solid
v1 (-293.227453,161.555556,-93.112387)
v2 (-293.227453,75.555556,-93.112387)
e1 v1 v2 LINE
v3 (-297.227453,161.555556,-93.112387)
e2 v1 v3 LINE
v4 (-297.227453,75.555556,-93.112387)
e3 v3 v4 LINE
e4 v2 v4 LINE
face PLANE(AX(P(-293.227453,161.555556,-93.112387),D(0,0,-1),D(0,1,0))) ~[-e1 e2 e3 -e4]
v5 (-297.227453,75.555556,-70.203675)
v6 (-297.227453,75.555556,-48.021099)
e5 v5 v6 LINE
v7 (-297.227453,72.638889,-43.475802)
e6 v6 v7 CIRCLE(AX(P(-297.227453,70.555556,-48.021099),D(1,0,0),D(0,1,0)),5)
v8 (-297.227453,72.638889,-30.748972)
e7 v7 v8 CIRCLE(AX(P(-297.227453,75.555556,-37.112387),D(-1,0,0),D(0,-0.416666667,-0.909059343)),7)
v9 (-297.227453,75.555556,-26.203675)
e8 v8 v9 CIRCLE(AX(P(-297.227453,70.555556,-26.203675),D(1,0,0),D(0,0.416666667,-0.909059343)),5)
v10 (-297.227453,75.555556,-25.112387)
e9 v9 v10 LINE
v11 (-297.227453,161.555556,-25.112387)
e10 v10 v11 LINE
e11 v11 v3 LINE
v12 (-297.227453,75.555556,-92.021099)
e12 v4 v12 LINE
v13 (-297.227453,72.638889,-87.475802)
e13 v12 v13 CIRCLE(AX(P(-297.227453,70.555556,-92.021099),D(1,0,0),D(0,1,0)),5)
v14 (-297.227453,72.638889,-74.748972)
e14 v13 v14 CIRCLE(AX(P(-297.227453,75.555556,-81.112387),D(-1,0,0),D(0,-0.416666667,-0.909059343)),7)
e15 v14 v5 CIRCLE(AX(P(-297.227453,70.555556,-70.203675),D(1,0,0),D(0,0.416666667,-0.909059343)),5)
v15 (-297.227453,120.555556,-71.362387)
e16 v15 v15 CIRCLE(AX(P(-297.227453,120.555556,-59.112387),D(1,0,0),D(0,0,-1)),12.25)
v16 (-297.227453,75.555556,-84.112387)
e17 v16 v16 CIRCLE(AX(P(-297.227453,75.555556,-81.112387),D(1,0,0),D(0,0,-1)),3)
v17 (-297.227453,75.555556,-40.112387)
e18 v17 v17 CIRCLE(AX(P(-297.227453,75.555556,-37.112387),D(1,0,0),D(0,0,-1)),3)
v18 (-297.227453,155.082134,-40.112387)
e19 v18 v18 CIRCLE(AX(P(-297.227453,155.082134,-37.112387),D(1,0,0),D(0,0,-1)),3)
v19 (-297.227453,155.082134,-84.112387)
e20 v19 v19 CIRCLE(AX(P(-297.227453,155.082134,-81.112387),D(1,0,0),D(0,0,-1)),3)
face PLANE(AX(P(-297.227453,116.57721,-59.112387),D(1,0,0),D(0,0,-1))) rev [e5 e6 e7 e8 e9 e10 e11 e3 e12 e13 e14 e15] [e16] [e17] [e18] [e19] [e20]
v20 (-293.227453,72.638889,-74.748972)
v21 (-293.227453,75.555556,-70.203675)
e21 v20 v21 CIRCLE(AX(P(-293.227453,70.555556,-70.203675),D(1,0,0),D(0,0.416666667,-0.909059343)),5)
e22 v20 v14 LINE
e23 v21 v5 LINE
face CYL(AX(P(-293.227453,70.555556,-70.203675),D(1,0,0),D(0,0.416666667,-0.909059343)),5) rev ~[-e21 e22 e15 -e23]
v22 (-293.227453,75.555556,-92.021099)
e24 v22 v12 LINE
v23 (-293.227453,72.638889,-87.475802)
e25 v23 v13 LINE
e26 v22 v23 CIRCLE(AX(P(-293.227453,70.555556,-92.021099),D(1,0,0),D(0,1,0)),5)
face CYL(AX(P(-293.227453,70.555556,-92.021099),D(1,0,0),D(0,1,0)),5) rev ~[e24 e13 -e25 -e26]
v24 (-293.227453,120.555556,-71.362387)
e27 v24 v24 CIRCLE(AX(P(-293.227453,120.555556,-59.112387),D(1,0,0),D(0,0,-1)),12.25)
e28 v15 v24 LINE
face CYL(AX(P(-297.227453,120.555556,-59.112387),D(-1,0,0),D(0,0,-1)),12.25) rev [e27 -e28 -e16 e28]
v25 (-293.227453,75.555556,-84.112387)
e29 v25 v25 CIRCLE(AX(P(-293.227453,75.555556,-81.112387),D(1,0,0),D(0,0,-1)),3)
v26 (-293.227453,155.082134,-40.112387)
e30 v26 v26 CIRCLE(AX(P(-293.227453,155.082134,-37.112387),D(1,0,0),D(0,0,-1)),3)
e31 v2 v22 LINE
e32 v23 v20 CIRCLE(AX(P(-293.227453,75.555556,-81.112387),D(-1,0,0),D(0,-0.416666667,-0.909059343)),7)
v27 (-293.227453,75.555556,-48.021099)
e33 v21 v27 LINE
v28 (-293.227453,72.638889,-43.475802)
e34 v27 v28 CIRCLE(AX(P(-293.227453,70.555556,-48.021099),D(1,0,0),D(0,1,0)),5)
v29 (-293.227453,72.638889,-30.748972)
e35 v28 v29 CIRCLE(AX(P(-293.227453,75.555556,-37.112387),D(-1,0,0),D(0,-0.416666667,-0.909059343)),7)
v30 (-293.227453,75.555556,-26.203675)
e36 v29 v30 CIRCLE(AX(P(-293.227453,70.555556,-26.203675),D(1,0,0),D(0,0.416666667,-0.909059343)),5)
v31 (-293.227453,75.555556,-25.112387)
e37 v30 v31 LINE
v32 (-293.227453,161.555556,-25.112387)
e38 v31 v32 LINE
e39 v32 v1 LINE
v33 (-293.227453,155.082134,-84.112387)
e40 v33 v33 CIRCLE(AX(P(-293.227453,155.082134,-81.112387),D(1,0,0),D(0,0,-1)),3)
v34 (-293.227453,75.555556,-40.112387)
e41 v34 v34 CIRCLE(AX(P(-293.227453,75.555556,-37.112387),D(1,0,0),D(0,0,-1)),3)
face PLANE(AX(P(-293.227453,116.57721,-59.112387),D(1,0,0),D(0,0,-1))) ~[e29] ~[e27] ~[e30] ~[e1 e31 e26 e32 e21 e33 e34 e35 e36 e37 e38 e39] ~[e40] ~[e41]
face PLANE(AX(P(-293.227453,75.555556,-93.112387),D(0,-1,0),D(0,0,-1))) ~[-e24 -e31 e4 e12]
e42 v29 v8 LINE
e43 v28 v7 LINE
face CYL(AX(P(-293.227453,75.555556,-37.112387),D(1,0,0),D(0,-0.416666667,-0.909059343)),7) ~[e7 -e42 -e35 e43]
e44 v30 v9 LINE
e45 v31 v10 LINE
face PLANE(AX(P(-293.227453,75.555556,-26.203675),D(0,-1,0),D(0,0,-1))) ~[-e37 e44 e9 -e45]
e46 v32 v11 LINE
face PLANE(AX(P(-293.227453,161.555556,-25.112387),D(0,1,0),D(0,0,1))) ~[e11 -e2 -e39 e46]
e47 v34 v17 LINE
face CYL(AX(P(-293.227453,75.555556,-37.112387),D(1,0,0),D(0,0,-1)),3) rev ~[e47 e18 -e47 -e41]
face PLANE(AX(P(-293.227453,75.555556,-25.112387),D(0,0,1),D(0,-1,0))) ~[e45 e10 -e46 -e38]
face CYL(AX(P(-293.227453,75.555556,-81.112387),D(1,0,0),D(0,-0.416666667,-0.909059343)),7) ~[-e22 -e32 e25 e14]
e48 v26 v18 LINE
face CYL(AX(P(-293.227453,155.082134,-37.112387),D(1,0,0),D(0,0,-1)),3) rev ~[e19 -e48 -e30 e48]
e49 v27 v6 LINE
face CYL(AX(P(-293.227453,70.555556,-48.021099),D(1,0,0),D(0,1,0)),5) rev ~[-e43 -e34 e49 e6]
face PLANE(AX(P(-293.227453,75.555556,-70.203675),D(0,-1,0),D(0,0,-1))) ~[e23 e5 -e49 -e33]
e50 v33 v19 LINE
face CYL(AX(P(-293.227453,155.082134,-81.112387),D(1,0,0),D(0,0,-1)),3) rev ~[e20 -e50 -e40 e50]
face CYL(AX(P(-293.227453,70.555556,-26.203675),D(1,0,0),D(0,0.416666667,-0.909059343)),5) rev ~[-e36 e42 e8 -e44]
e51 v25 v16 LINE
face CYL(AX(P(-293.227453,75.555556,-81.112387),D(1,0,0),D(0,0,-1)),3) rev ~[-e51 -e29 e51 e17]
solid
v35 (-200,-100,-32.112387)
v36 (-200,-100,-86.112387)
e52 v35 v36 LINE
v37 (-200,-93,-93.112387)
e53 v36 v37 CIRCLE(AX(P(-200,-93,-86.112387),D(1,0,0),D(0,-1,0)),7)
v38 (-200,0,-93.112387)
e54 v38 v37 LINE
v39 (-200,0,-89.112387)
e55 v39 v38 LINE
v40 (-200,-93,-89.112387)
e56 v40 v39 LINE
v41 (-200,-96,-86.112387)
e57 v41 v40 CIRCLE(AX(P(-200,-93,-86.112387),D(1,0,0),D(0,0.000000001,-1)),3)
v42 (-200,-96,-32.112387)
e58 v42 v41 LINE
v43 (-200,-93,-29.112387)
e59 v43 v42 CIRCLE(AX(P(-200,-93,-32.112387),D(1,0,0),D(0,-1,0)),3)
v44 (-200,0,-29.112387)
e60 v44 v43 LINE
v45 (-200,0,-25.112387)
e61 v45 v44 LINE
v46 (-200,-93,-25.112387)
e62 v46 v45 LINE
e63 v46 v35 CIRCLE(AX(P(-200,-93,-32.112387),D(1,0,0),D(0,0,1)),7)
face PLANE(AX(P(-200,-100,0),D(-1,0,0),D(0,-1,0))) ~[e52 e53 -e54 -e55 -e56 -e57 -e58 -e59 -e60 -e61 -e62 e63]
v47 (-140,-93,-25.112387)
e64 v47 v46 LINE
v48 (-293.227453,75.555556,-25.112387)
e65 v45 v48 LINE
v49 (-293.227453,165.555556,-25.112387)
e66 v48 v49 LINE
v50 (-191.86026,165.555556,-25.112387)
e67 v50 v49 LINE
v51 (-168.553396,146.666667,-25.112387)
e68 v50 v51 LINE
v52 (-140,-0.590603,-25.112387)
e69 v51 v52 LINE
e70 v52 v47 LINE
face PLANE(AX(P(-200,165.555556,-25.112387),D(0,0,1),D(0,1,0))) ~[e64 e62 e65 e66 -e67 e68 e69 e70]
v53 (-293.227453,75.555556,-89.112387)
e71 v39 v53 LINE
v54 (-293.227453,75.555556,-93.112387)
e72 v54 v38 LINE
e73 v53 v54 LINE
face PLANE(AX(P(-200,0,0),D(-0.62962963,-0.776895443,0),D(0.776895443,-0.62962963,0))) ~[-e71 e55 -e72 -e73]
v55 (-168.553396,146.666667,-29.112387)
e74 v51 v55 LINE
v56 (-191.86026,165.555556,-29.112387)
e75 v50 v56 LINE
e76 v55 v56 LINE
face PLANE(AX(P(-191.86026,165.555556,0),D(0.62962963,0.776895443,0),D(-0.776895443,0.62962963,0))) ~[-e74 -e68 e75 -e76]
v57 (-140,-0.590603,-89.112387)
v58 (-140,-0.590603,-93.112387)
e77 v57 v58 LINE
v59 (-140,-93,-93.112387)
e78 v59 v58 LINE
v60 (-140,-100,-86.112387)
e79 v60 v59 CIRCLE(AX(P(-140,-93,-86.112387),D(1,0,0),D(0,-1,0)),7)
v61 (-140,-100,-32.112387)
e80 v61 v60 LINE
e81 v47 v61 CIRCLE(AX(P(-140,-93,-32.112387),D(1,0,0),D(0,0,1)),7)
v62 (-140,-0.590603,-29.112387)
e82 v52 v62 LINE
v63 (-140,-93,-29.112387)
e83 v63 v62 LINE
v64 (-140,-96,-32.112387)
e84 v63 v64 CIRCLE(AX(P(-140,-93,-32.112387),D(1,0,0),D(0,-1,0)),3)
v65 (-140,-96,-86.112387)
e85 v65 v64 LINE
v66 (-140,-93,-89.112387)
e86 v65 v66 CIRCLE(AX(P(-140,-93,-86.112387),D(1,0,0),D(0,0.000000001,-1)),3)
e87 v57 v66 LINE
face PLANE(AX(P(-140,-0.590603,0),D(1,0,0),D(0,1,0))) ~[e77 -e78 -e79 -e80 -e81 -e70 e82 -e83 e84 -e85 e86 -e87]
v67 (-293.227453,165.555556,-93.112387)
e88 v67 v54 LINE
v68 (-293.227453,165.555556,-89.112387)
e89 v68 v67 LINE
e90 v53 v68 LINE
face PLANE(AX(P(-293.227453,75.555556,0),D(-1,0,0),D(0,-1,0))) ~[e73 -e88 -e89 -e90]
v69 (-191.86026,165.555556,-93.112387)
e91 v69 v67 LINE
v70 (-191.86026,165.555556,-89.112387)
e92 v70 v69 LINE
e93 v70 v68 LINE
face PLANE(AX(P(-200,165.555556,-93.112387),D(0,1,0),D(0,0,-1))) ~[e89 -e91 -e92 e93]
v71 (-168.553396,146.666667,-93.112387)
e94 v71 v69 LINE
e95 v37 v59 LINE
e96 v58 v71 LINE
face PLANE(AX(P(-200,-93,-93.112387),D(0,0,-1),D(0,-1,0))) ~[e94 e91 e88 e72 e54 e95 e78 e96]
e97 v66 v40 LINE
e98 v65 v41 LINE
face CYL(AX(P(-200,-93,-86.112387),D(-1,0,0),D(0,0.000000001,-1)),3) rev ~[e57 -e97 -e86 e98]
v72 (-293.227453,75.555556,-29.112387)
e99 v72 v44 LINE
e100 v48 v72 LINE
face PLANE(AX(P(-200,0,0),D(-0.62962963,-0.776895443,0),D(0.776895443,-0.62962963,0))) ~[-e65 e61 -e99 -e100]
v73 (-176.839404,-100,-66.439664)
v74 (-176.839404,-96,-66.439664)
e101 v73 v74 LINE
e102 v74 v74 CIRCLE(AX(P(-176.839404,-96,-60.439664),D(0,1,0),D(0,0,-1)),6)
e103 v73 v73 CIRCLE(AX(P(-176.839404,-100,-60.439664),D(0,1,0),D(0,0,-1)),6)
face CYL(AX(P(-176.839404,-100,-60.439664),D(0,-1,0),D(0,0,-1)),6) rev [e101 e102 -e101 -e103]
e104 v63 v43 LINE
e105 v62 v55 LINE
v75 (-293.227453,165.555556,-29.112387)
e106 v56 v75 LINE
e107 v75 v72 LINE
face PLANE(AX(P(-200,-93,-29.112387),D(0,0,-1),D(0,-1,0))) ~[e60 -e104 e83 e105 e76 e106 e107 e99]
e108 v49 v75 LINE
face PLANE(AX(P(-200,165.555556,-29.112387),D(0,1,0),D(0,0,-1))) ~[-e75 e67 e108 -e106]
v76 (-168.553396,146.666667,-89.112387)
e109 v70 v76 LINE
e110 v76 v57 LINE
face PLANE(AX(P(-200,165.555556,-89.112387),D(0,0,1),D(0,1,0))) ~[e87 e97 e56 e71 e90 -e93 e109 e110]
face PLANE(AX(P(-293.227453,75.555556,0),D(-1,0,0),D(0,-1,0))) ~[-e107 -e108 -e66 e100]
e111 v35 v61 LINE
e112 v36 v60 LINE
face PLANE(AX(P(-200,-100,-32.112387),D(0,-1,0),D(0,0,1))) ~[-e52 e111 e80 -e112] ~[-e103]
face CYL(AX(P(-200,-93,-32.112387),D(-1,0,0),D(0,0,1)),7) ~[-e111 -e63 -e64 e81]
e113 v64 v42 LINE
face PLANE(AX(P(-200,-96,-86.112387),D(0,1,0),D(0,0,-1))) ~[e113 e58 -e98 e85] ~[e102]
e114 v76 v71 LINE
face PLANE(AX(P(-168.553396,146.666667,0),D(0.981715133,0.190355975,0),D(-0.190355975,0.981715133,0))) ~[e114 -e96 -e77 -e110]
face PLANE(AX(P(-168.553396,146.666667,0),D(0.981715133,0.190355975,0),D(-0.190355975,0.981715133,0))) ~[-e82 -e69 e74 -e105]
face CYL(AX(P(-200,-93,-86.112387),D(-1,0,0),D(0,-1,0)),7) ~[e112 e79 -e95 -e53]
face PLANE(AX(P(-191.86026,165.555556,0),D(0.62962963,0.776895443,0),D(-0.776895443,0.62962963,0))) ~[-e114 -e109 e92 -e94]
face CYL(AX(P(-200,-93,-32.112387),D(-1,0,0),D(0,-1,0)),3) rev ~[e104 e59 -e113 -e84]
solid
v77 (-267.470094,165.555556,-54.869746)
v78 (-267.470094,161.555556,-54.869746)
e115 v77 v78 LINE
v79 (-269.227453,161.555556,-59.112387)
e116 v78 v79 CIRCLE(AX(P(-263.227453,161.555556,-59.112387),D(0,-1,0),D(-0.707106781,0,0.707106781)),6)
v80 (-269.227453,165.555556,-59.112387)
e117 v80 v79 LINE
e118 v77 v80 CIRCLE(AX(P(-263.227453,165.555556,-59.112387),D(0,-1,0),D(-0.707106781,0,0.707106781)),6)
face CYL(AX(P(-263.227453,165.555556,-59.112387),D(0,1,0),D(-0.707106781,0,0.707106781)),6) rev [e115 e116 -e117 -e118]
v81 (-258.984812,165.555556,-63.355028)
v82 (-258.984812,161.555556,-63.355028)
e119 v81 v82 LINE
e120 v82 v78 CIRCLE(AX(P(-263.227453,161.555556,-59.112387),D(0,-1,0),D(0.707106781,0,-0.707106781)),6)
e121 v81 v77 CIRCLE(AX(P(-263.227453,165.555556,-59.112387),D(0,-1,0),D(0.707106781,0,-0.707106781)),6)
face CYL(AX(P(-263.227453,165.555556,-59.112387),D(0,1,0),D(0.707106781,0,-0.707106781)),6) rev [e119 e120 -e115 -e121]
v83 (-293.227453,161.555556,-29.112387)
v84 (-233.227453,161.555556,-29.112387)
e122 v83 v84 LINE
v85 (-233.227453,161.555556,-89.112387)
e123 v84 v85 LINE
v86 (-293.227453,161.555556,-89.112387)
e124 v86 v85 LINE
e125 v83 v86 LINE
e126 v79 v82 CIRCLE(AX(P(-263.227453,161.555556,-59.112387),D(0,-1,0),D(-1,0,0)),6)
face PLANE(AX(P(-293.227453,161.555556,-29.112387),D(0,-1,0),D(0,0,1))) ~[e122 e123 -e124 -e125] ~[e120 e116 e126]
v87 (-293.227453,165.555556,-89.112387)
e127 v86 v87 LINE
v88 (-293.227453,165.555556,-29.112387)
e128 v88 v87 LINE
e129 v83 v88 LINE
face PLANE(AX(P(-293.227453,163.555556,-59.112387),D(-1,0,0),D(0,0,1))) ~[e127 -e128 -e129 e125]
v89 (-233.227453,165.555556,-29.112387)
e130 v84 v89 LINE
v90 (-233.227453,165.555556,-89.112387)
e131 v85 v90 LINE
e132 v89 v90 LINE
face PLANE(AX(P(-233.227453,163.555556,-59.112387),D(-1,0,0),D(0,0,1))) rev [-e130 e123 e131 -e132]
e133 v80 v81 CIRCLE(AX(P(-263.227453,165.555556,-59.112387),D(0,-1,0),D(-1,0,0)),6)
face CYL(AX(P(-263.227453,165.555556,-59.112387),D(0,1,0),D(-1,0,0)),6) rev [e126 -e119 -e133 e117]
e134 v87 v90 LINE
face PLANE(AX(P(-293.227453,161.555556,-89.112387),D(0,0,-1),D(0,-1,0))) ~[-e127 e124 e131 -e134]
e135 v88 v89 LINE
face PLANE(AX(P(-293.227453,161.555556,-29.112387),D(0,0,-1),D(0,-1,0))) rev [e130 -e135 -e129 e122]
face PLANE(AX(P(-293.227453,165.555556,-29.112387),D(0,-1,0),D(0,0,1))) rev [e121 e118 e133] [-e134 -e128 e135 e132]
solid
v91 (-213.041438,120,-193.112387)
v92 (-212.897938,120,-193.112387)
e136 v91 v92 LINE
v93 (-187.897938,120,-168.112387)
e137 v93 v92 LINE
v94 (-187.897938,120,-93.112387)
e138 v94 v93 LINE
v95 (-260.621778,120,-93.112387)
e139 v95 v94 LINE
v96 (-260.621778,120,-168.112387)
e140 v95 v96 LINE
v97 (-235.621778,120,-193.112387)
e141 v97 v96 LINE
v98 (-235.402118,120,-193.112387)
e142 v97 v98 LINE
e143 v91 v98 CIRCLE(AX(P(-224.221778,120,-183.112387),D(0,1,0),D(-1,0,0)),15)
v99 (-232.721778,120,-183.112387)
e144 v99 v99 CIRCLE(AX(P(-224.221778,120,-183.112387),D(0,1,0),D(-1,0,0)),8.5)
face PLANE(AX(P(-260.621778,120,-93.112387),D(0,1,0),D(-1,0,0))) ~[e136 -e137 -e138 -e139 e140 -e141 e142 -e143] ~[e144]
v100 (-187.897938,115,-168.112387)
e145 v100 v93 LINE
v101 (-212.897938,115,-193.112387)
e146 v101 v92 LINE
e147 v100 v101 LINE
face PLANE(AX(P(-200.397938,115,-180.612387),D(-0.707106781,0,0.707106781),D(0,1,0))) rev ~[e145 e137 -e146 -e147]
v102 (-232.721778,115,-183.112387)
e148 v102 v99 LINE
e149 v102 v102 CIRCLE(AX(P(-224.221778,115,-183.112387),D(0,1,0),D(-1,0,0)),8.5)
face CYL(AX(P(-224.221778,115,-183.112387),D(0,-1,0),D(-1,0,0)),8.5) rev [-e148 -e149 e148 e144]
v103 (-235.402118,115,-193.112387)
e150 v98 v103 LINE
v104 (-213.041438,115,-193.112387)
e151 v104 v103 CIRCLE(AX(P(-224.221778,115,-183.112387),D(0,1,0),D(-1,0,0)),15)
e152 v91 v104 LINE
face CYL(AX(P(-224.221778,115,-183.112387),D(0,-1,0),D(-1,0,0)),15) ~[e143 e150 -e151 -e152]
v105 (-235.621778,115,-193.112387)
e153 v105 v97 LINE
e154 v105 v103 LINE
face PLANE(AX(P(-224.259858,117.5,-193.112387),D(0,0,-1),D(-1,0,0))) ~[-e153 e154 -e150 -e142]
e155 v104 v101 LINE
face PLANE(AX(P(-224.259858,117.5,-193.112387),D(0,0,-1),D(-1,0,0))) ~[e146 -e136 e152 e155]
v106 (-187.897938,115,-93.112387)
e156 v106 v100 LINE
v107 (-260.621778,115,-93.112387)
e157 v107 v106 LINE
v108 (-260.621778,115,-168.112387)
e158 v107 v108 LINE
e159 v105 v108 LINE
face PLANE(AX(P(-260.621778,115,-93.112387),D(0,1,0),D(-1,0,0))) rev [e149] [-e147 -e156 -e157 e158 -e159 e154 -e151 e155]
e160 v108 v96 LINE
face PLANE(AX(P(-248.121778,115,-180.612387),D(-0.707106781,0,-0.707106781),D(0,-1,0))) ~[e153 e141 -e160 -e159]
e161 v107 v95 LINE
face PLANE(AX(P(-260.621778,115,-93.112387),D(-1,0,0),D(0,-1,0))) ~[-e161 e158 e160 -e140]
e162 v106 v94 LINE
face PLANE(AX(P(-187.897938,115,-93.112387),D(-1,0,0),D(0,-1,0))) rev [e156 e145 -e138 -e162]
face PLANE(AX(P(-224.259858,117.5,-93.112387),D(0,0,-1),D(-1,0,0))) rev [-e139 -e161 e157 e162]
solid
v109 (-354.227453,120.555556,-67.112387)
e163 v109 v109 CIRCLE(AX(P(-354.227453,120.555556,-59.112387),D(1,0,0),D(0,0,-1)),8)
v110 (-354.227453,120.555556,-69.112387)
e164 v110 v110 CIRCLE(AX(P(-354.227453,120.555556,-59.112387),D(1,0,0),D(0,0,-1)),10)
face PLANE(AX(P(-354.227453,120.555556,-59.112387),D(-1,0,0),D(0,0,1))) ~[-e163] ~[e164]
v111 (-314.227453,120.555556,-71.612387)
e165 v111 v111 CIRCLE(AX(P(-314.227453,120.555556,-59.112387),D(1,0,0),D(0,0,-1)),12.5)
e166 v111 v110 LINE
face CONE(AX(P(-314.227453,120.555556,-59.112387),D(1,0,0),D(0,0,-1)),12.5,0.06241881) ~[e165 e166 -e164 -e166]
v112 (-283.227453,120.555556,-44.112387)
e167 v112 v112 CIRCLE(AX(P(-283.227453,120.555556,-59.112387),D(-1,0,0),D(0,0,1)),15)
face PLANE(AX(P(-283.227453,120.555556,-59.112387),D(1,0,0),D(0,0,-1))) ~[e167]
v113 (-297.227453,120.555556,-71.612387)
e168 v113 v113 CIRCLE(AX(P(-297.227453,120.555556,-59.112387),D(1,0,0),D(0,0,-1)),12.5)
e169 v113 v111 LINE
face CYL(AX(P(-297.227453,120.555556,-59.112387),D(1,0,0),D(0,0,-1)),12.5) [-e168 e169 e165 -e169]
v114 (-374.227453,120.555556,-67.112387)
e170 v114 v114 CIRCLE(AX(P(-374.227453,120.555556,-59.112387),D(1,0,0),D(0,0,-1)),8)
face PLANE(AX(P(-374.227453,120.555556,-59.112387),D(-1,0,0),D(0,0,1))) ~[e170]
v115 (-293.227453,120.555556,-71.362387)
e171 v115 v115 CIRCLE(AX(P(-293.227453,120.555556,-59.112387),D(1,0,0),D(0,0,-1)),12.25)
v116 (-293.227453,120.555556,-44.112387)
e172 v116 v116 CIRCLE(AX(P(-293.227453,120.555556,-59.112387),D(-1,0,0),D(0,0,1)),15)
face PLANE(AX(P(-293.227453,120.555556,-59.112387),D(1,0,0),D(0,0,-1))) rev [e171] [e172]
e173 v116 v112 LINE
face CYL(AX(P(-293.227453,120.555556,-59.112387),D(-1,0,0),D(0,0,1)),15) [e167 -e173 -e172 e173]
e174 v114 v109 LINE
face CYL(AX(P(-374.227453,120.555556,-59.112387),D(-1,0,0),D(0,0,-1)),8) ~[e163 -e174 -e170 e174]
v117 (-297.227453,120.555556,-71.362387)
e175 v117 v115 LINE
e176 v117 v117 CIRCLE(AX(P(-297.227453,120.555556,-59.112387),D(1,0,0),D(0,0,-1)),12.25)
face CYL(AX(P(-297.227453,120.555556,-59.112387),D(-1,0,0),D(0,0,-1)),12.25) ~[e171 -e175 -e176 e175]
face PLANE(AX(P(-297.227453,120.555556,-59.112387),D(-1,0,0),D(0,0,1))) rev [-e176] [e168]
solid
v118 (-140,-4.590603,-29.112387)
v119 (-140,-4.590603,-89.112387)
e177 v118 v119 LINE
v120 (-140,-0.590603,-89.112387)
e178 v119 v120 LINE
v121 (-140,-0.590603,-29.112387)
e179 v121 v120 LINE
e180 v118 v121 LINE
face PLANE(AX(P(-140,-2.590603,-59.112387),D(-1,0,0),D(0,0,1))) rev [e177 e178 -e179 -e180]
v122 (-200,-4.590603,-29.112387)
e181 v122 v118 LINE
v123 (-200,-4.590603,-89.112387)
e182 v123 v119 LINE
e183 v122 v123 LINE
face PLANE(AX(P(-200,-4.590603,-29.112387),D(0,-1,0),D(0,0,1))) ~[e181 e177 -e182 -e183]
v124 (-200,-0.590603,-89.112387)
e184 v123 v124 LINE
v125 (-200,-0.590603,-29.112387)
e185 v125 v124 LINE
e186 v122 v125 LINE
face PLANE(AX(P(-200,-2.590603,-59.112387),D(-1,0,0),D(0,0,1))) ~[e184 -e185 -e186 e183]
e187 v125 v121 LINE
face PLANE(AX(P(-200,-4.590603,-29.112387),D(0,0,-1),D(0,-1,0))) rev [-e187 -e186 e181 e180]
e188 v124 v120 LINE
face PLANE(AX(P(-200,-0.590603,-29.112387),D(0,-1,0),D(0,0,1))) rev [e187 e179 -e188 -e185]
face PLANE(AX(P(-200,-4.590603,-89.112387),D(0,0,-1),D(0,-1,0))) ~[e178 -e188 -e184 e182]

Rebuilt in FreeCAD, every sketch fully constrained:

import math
import FreeCAD as App
import Part
import Sketcher
Q = App.Units.Quantity


def edges_at(feature, points):
    """Names of the edges that pass closest to the given points."""
    edges = feature.Shape.Edges
    near = lambda p: min(range(len(edges)), key=lambda i: edges[i].distToShape(Part.Vertex(*p))[0])
    return sorted({f"Edge{near(p) + 1}" for p in points})

doc = App.newDocument("Part")
body = doc.addObject("PartDesign::Body", "Body")

# Sketch on YZ plane
sketch1 = body.newObject("Sketcher::SketchObject", "Sketch")
sketch1.AttachmentSupport = (doc.getObject("YZ_Plane"), [""])
sketch1.MapMode = "FlatFace"
sketch1.addGeometry([
    Part.LineSegment(App.Vector(-93, -93.1, 0), App.Vector(165.6, -93.1, 0)),  # 0
    Part.LineSegment(App.Vector(165.6, -93.1, 0), App.Vector(165.6, -89.1, 0)),  # 1
    Part.LineSegment(App.Vector(165.6, -89.1, 0), App.Vector(-93, -89.1, 0)),  # 2
    Part.ArcOfCircle(Part.Circle(App.Vector(-93, -86.1, 0), App.Vector(0, 0, 1), 3), math.radians(180), math.radians(270)),  # 3
    Part.LineSegment(App.Vector(-96, -86.1, 0), App.Vector(-96, -32.1, 0)),  # 4
    Part.ArcOfCircle(Part.Circle(App.Vector(-93, -32.1, 0), App.Vector(0, 0, 1), 3), math.radians(90), math.radians(180)),  # 5
    Part.LineSegment(App.Vector(-93, -29.1, 0), App.Vector(165.6, -29.1, 0)),  # 6
    Part.LineSegment(App.Vector(165.6, -29.1, 0), App.Vector(165.6, -25.1, 0)),  # 7
    Part.LineSegment(App.Vector(165.6, -25.1, 0), App.Vector(-93, -25.1, 0)),  # 8
    Part.ArcOfCircle(Part.Circle(App.Vector(-93, -32.1, 0), App.Vector(0, 0, 1), 7), math.radians(90), math.radians(180)),  # 9
    Part.LineSegment(App.Vector(-100, -32.1, 0), App.Vector(-100, -86.1, 0)),  # 10
    Part.ArcOfCircle(Part.Circle(App.Vector(-93, -86.1, 0), App.Vector(0, 0, 1), 7), math.radians(180), math.radians(270)),  # 11
], False)
sketch1.addConstraint([
    Sketcher.Constraint("Coincident", 0, 2, 1, 1),
    Sketcher.Constraint("Coincident", 1, 2, 2, 1),
    Sketcher.Constraint("Tangent", 2, 2, 3, 2),
    Sketcher.Constraint("Tangent", 3, 1, 4, 1),
    Sketcher.Constraint("Tangent", 4, 2, 5, 2),
    Sketcher.Constraint("Tangent", 5, 1, 6, 1),
    Sketcher.Constraint("Coincident", 6, 2, 7, 1),
    Sketcher.Constraint("Coincident", 7, 2, 8, 1),
    Sketcher.Constraint("Tangent", 8, 2, 9, 1),
    Sketcher.Constraint("Tangent", 9, 2, 10, 1),
    Sketcher.Constraint("Tangent", 10, 2, 11, 1),
    Sketcher.Constraint("Tangent", 11, 2, 0, 1),
    Sketcher.Constraint("Horizontal", 0),
    Sketcher.Constraint("Vertical", 1),
    Sketcher.Constraint("Horizontal", 2),
    Sketcher.Constraint("Vertical", 4),
    Sketcher.Constraint("Horizontal", 6),
    Sketcher.Constraint("Vertical", 7),
    Sketcher.Constraint("Horizontal", 8),
    Sketcher.Constraint("Vertical", 10),
    Sketcher.Constraint("Coincident", 9, 3, 5, 3),
    Sketcher.Constraint("Coincident", 11, 3, 3, 3),
    Sketcher.Constraint("Equal", 3, 5),
    Sketcher.Constraint("Vertical", 1, 2, 6, 2),
    Sketcher.Constraint("Radius", 3, Q("3 mm")),
    Sketcher.Constraint("Radius", 9, Q("7 mm")),
    Sketcher.Constraint("DistanceY", 4, 1, 4, 2, Q("54 mm")),
    Sketcher.Constraint("DistanceX", 3, 3, -1, 1, Q("93 mm")),
    Sketcher.Constraint("DistanceX", 0, 1, 0, 2, Q("258.555556 mm")),
    Sketcher.Constraint("DistanceY", 3, 3, -1, 1, Q("86.112387 mm")),
])
pad1 = body.newObject("PartDesign::Pad", "Pad")
pad1.Profile = sketch1
pad1.Length = 214
pad1.Midplane = True

# Sketch on XY plane
sketch2 = body.newObject("Sketcher::SketchObject", "Sketch001")
sketch2.AttachmentSupport = (doc.getObject("XY_Plane"), [""])
sketch2.MapMode = "FlatFace"
sketch2.addGeometry([
    Part.LineSegment(App.Vector(-190, 12, 0), App.Vector(-190, -230, 0)),  # 0
    Part.LineSegment(App.Vector(-190, -230, 0), App.Vector(130, -230, 0)),  # 1
    Part.LineSegment(App.Vector(130, -230, 0), App.Vector(130, -62, 0)),  # 2
    Part.LineSegment(App.Vector(130, -62, 0), App.Vector(223, 14, 0)),  # 3
    Part.LineSegment(App.Vector(223, 14, 0), App.Vector(223, 296, 0)),  # 4
    Part.LineSegment(App.Vector(223, 296, 0), App.Vector(-54, 296, 0)),  # 5
    Part.LineSegment(App.Vector(-54, 296, 0), App.Vector(-150, 218, 0)),  # 6
    Part.LineSegment(App.Vector(-150, 218, 0), App.Vector(-190, 12, 0)),  # 7
    Part.LineSegment(App.Vector(-60, -100, 0), App.Vector(-60, -1, 0)),  # 8
    Part.LineSegment(App.Vector(-60, -1, 0), App.Vector(-31, 147, 0)),  # 9
    Part.LineSegment(App.Vector(-31, 147, 0), App.Vector(-8, 166, 0)),  # 10
    Part.LineSegment(App.Vector(-8, 166, 0), App.Vector(93, 166, 0)),  # 11
    Part.LineSegment(App.Vector(93, 166, 0), App.Vector(93, 76, 0)),  # 12
    Part.LineSegment(App.Vector(93, 76, 0), App.Vector(0, 0, 0)),  # 13
    Part.LineSegment(App.Vector(0, 0, 0), App.Vector(0, -100, 0)),  # 14
    Part.LineSegment(App.Vector(0, -100, 0), App.Vector(-60, -100, 0)),  # 15
], False)
sketch2.addConstraint([
    Sketcher.Constraint("Coincident", 0, 2, 1, 1),
    Sketcher.Constraint("Coincident", 1, 2, 2, 1),
    Sketcher.Constraint("Coincident", 2, 2, 3, 1),
    Sketcher.Constraint("Coincident", 3, 2, 4, 1),
    Sketcher.Constraint("Coincident", 4, 2, 5, 1),
    Sketcher.Constraint("Coincident", 5, 2, 6, 1),
    Sketcher.Constraint("Coincident", 6, 2, 7, 1),
    Sketcher.Constraint("Coincident", 7, 2, 0, 1),
    Sketcher.Constraint("Coincident", 8, 2, 9, 1),
    Sketcher.Constraint("Coincident", 9, 2, 10, 1),
    Sketcher.Constraint("Coincident", 10, 2, 11, 1),
    Sketcher.Constraint("Coincident", 11, 2, 12, 1),
    Sketcher.Constraint("Coincident", 12, 2, 13, 1),
    Sketcher.Constraint("Coincident", 13, 2, 14, 1),
    Sketcher.Constraint("Coincident", 14, 2, 15, 1),
    Sketcher.Constraint("Coincident", 15, 2, 8, 1),
    Sketcher.Constraint("Vertical", 0),
    Sketcher.Constraint("Horizontal", 1),
    Sketcher.Constraint("Vertical", 2),
    Sketcher.Constraint("Vertical", 4),
    Sketcher.Constraint("Horizontal", 5),
    Sketcher.Constraint("Vertical", 8),
    Sketcher.Constraint("Horizontal", 11),
    Sketcher.Constraint("Vertical", 12),
    Sketcher.Constraint("Vertical", 14),
    Sketcher.Constraint("Horizontal", 15),
    Sketcher.Constraint("Coincident", 13, 2, -1, 1),
    Sketcher.Constraint("Parallel", 3, 6),
    Sketcher.Constraint("Parallel", 7, 9),
    Sketcher.Constraint("Parallel", 6, 10),
    Sketcher.Constraint("Parallel", 10, 13),
    Sketcher.Constraint("Equal", 3, 13),
    Sketcher.Constraint("DistanceX", 1, 1, 1, 2, Q("320 mm")),
    Sketcher.Constraint("DistanceX", 15, 2, 15, 1, Q("60 mm")),
    Sketcher.Constraint("DistanceY", 12, 2, 12, 1, Q("90 mm")),
    Sketcher.Constraint("DistanceY", 14, 2, 14, 1, Q("100 mm")),
    Sketcher.Constraint("Distance", 3, Q("120 mm")),
    Sketcher.Constraint("Distance", 9, Q("150 mm")),
    Sketcher.Constraint("Distance", 10, Q("30 mm")),
    Sketcher.Constraint("DistanceX", 0, 2, -1, 1, Q("190 mm")),
    Sketcher.Constraint("DistanceY", 0, 2, -1, 1, Q("230 mm")),
    Sketcher.Constraint("DistanceY", 10, 2, 5, 2, Q("130 mm")),
    Sketcher.Constraint("DistanceY", 0, 2, 0, 1, Q("241.896699 mm")),
    Sketcher.Constraint("DistanceY", 2, 1, 2, 2, Q("168.024932 mm")),
    Sketcher.Constraint("DistanceX", 5, 2, 5, 1, Q("277.431723 mm")),
    Sketcher.Constraint("DistanceX", 11, 1, 11, 2, Q("101.367194 mm")),
    Sketcher.Constraint("DistanceY", 8, 1, 8, 2, Q("99.409397 mm")),
])
pocket1 = body.newObject("PartDesign::Pocket", "Pocket")
pocket1.Profile = sketch2
pocket1.Length = 214

# Sketch on XZ plane
sketch3 = body.newObject("Sketcher::SketchObject", "Sketch002")
sketch3.AttachmentSupport = (doc.getObject("XZ_Plane"), [""])
sketch3.MapMode = "FlatFace"
sketch3.AttachmentOffset = App.Placement(App.Vector(0, 0, 100), App.Rotation())
sketch3.addGeometry(Part.Circle(App.Vector(-23, -60, 0), App.Vector(0, 0, 1), 6), False)
sketch3.addConstraint([
    Sketcher.Constraint("Diameter", 0, Q("12 mm")),
    Sketcher.Constraint("DistanceX", 0, 3, -1, 1, Q("23.160596 mm")),
    Sketcher.Constraint("DistanceY", 0, 3, -1, 1, Q("60.439664 mm")),
])
pocket2 = body.newObject("PartDesign::Pocket", "Pocket001")
pocket2.Profile = sketch3
pocket2.Length = 10
body2 = doc.addObject("PartDesign::Body", "Body001")

# Sketch on YZ plane
sketch4 = body2.newObject("Sketcher::SketchObject", "Sketch003")
sketch4.AttachmentSupport = (doc.getObject("YZ_Plane001"), [""])
sketch4.MapMode = "FlatFace"
sketch4.addGeometry([
    Part.LineSegment(App.Vector(-0.6, -29.1, 0), App.Vector(-4.6, -29.1, 0)),
    Part.LineSegment(App.Vector(-4.6, -29.1, 0), App.Vector(-4.6, -89.1, 0)),
    Part.LineSegment(App.Vector(-4.6, -89.1, 0), App.Vector(-0.6, -89.1, 0)),
    Part.LineSegment(App.Vector(-0.6, -89.1, 0), App.Vector(-0.6, -29.1, 0)),
], False)
sketch4.addConstraint([
    Sketcher.Constraint("Coincident", 0, 2, 1, 1),
    Sketcher.Constraint("Coincident", 1, 2, 2, 1),
    Sketcher.Constraint("Coincident", 2, 2, 3, 1),
    Sketcher.Constraint("Coincident", 3, 2, 0, 1),
    Sketcher.Constraint("Horizontal", 0),
    Sketcher.Constraint("Vertical", 1),
    Sketcher.Constraint("Horizontal", 2),
    Sketcher.Constraint("Vertical", 3),
    Sketcher.Constraint("DistanceX", 0, 2, 0, 1, Q("4 mm")),
    Sketcher.Constraint("DistanceY", 1, 2, 1, 1, Q("60 mm")),
    Sketcher.Constraint("DistanceX", 0, 2, -1, 1, Q("4.590603 mm")),
    Sketcher.Constraint("DistanceY", 0, 2, -1, 1, Q("29.112387 mm")),
])
pad2 = body2.newObject("PartDesign::Pad", "Pad001")
pad2.Profile = sketch4
pad2.Length = 60
pad2.Reversed = True
body3 = doc.addObject("PartDesign::Body", "Body002")

# Sketch on YZ plane
sketch5 = body3.newObject("Sketcher::SketchObject", "Sketch004")
sketch5.AttachmentSupport = (doc.getObject("YZ_Plane002"), [""])
sketch5.MapMode = "FlatFace"
sketch5.AttachmentOffset = App.Placement(App.Vector(0, 0, 93.227453), App.Rotation())
sketch5.addGeometry([
    Part.LineSegment(App.Vector(165.6, -29.1, 0), App.Vector(161.6, -29.1, 0)),
    Part.LineSegment(App.Vector(161.6, -29.1, 0), App.Vector(161.6, -89.1, 0)),
    Part.LineSegment(App.Vector(161.6, -89.1, 0), App.Vector(165.6, -89.1, 0)),
    Part.LineSegment(App.Vector(165.6, -89.1, 0), App.Vector(165.6, -29.1, 0)),
], False)
sketch5.addConstraint([
    Sketcher.Constraint("Coincident", 0, 2, 1, 1),
    Sketcher.Constraint("Coincident", 1, 2, 2, 1),
    Sketcher.Constraint("Coincident", 2, 2, 3, 1),
    Sketcher.Constraint("Coincident", 3, 2, 0, 1),
    Sketcher.Constraint("Horizontal", 0),
    Sketcher.Constraint("Vertical", 1),
    Sketcher.Constraint("Horizontal", 2),
    Sketcher.Constraint("Vertical", 3),
    Sketcher.Constraint("DistanceX", 0, 2, 0, 1, Q("4 mm")),
    Sketcher.Constraint("DistanceY", 1, 2, 1, 1, Q("60 mm")),
    Sketcher.Constraint("DistanceX", -1, 1, 0, 2, Q("161.555556 mm")),
    Sketcher.Constraint("DistanceY", 0, 2, -1, 1, Q("29.112387 mm")),
])
pad3 = body3.newObject("PartDesign::Pad", "Pad002")
pad3.Profile = sketch5
pad3.Length = 60
pad3.Reversed = True

# Sketch on XZ plane
sketch6 = body3.newObject("Sketcher::SketchObject", "Sketch005")
sketch6.AttachmentSupport = (doc.getObject("XZ_Plane002"), [""])
sketch6.MapMode = "FlatFace"
sketch6.AttachmentOffset = App.Placement(App.Vector(0, 0, -165.555556), App.Rotation())
sketch6.addGeometry([
    Part.ArcOfCircle(Part.Circle(App.Vector(63.2, -59.1, 0), App.Vector(0, 0, 1), 6), math.radians(-135), math.radians(0)),
    Part.ArcOfCircle(Part.Circle(App.Vector(63.2, -59.1, 0), App.Vector(0, 0, 1), 6), math.radians(45), math.radians(225)),
    Part.ArcOfCircle(Part.Circle(App.Vector(63.2, -59.1, 0), App.Vector(0, 0, 1), 6), math.radians(0), math.radians(45)),
], False)
sketch6.addConstraint([
    Sketcher.Constraint("Tangent", 0, 1, 1, 2),
    Sketcher.Constraint("Tangent", 1, 1, 2, 2),
    Sketcher.Constraint("Tangent", 2, 1, 0, 2),
    Sketcher.Constraint("Horizontal", 1, 3, 2, 1),
    Sketcher.Constraint("Radius", 0, Q("6 mm")),
    Sketcher.Constraint("DistanceX", 0, 1, 2, 3, Q("4.242641 mm")),
    Sketcher.Constraint("DistanceX", 0, 3, 1, 1, Q("4.242641 mm")),
    Sketcher.Constraint("DistanceX", -1, 1, 0, 3, Q("63.227453 mm")),
    Sketcher.Constraint("DistanceY", 0, 3, -1, 1, Q("59.112387 mm")),
])
pocket3 = body3.newObject("PartDesign::Pocket", "Pocket002")
pocket3.Profile = sketch6
pocket3.Length = 8
pocket3.Reversed = True
body4 = doc.addObject("PartDesign::Body", "Body003")

# Sketch on YZ plane
sketch7 = body4.newObject("Sketcher::SketchObject", "Sketch006")
sketch7.AttachmentSupport = (doc.getObject("YZ_Plane003"), [""])
sketch7.MapMode = "FlatFace"
sketch7.AttachmentOffset = App.Placement(App.Vector(0, 0, 93.227453), App.Rotation())
sketch7.addGeometry([
    Part.LineSegment(App.Vector(161.6, -93.1, 0), App.Vector(161.6, -25.1, 0)),  # 0
    Part.LineSegment(App.Vector(161.6, -25.1, 0), App.Vector(75.6, -25.1, 0)),  # 1
    Part.LineSegment(App.Vector(75.6, -25.1, 0), App.Vector(75.6, -26.2, 0)),  # 2
    Part.ArcOfCircle(Part.Circle(App.Vector(70.6, -26.2, 0), App.Vector(0, 0, 1), 5), math.radians(-65), math.radians(0)),  # 3
    Part.ArcOfCircle(Part.Circle(App.Vector(75.6, -37.1, 0), App.Vector(0, 0, 1), 7), math.radians(115), math.radians(245)),  # 4
    Part.ArcOfCircle(Part.Circle(App.Vector(70.6, -48, 0), App.Vector(0, 0, 1), 5), math.radians(0), math.radians(65)),  # 5
    Part.LineSegment(App.Vector(75.6, -48, 0), App.Vector(75.6, -70.2, 0)),  # 6
    Part.ArcOfCircle(Part.Circle(App.Vector(70.6, -70.2, 0), App.Vector(0, 0, 1), 5), math.radians(-65), math.radians(0)),  # 7
    Part.ArcOfCircle(Part.Circle(App.Vector(75.6, -81.1, 0), App.Vector(0, 0, 1), 7), math.radians(115), math.radians(245)),  # 8
    Part.ArcOfCircle(Part.Circle(App.Vector(70.6, -92, 0), App.Vector(0, 0, 1), 5), math.radians(0), math.radians(65)),  # 9
    Part.LineSegment(App.Vector(75.6, -92, 0), App.Vector(75.6, -93.1, 0)),  # 10
    Part.LineSegment(App.Vector(75.6, -93.1, 0), App.Vector(161.6, -93.1, 0)),  # 11
    Part.Circle(App.Vector(75.6, -81.1, 0), App.Vector(0, 0, 1), 3),  # 12
    Part.Circle(App.Vector(75.6, -37.1, 0), App.Vector(0, 0, 1), 3),  # 13
    Part.Circle(App.Vector(155.1, -81.1, 0), App.Vector(0, 0, 1), 3),  # 14
    Part.Circle(App.Vector(155.1, -37.1, 0), App.Vector(0, 0, 1), 3),  # 15
], False)
sketch7.addConstraint([
    Sketcher.Constraint("Coincident", 0, 2, 1, 1),
    Sketcher.Constraint("Coincident", 1, 2, 2, 1),
    Sketcher.Constraint("Tangent", 2, 2, 3, 2),
    Sketcher.Constraint("Tangent", 3, 1, 4, 1),
    Sketcher.Constraint("Tangent", 4, 2, 5, 2),
    Sketcher.Constraint("Tangent", 5, 1, 6, 1),
    Sketcher.Constraint("Tangent", 6, 2, 7, 2),
    Sketcher.Constraint("Tangent", 7, 1, 8, 1),
    Sketcher.Constraint("Tangent", 8, 2, 9, 2),
    Sketcher.Constraint("Tangent", 9, 1, 10, 1),
    Sketcher.Constraint("Coincident", 10, 2, 11, 1),
    Sketcher.Constraint("Coincident", 11, 2, 0, 1),
    Sketcher.Constraint("Vertical", 0),
    Sketcher.Constraint("Horizontal", 1),
    Sketcher.Constraint("Vertical", 2),
    Sketcher.Constraint("Vertical", 6),
    Sketcher.Constraint("Vertical", 10),
    Sketcher.Constraint("Horizontal", 11),
    Sketcher.Constraint("Coincident", 12, 3, 8, 3),
    Sketcher.Constraint("Coincident", 13, 3, 4, 3),
    Sketcher.Constraint("Equal", 3, 5),
    Sketcher.Constraint("Equal", 5, 7),
    Sketcher.Constraint("Equal", 4, 8),
    Sketcher.Constraint("Equal", 7, 9),
    Sketcher.Constraint("Equal", 12, 13),
    Sketcher.Constraint("Equal", 13, 14),
    Sketcher.Constraint("Equal", 14, 15),
    Sketcher.Constraint("Horizontal", 12, 3, 14, 3),
    Sketcher.Constraint("Horizontal", 13, 3, 15, 3),
    Sketcher.Constraint("Vertical", 3, 3, 5, 3),
    Sketcher.Constraint("Vertical", 4, 3, 8, 3),
    Sketcher.Constraint("Vertical", 7, 3, 9, 3),
    Sketcher.Constraint("Vertical", 14, 3, 15, 3),
    Sketcher.Constraint("Vertical", 13, 3, 1, 2),
    Sketcher.Constraint("Equal", 2, 10),
    Sketcher.Constraint("Diameter", 12, Q("6 mm")),
    Sketcher.Constraint("Radius", 3, Q("5 mm")),
    Sketcher.Constraint("Radius", 4, Q("7 mm")),
    Sketcher.Constraint("DistanceX", 1, 2, 1, 1, Q("86 mm")),
    Sketcher.Constraint("DistanceY", 0, 1, 0, 2, Q("68 mm")),
    Sketcher.Constraint("DistanceY", 7, 3, 3, 3, Q("44 mm")),
    Sketcher.Constraint("DistanceY", 5, 3, -1, 1, Q("48.021099 mm")),
    Sketcher.Constraint("DistanceX", -1, 1, 3, 1, Q("72.638889 mm")),
    Sketcher.Constraint("DistanceX", 8, 3, 14, 3, Q("79.526579 mm")),
])
pad4 = body4.newObject("PartDesign::Pad", "Pad003")
pad4.Profile = sketch7
pad4.Length = 4

# Sketch on YZ plane
sketch8 = body4.newObject("Sketcher::SketchObject", "Sketch007")
sketch8.AttachmentSupport = (doc.getObject("YZ_Plane003"), [""])
sketch8.MapMode = "FlatFace"
sketch8.AttachmentOffset = App.Placement(App.Vector(0, 0, 97.227453), App.Rotation())
sketch8.addGeometry(Part.Circle(App.Vector(121, -59, 0), App.Vector(0, 0, 1), 12), False)
sketch8.addConstraint([
    Sketcher.Constraint("Diameter", 0, Q("24.5 mm")),
    Sketcher.Constraint("DistanceX", -1, 1, 0, 3, Q("120.555556 mm")),
    Sketcher.Constraint("DistanceY", 0, 3, -1, 1, Q("59.112387 mm")),
])
pocket4 = body4.newObject("PartDesign::Pocket", "Pocket003")
pocket4.Profile = sketch8
pocket4.Length = 4
body5 = doc.addObject("PartDesign::Body", "Body004")

# Sketch on XY plane
sketch9 = body5.newObject("Sketcher::SketchObject", "Sketch008")
sketch9.AttachmentSupport = (doc.getObject("XY_Plane004"), [""])
sketch9.MapMode = "FlatFace"
sketch9.AttachmentOffset = App.Placement(App.Vector(0, 0, -93.112387), App.Rotation())
sketch9.addGeometry([
    Part.LineSegment(App.Vector(61, 120, 0), App.Vector(61, 115, 0)),
    Part.LineSegment(App.Vector(61, 115, 0), App.Vector(-12, 115, 0)),
    Part.LineSegment(App.Vector(-12, 115, 0), App.Vector(-12, 120, 0)),
    Part.LineSegment(App.Vector(-12, 120, 0), App.Vector(61, 120, 0)),
], False)
sketch9.addConstraint([
    Sketcher.Constraint("Coincident", 0, 2, 1, 1),
    Sketcher.Constraint("Coincident", 1, 2, 2, 1),
    Sketcher.Constraint("Coincident", 2, 2, 3, 1),
    Sketcher.Constraint("Coincident", 3, 2, 0, 1),
    Sketcher.Constraint("Vertical", 0),
    Sketcher.Constraint("Horizontal", 1),
    Sketcher.Constraint("Vertical", 2),
    Sketcher.Constraint("Horizontal", 3),
    Sketcher.Constraint("DistanceY", 0, 2, 0, 1, Q("5 mm")),
    Sketcher.Constraint("DistanceY", -1, 1, 0, 2, Q("115 mm")),
    Sketcher.Constraint("DistanceX", 1, 2, 1, 1, Q("72.723841 mm")),
    Sketcher.Constraint("DistanceX", -1, 1, 0, 2, Q("60.621778 mm")),
])
pad5 = body5.newObject("PartDesign::Pad", "Pad004")
pad5.Profile = sketch9
pad5.Length = 100
pad5.Reversed = True
doc.recompute()

chamfer = body5.newObject("PartDesign::Chamfer", "Chamfer")
chamfer.Base = (pad5, edges_at(pad5, [(-12.102, 117.5, -193.112)]))
chamfer.Size = 25
doc.recompute()

chamfer2 = body5.newObject("PartDesign::Chamfer", "Chamfer001")
chamfer2.Base = (chamfer, edges_at(chamfer, [(60.622, 117.5, -193.112)]))
chamfer2.Size = 25

# Sketch on XZ plane
sketch10 = body5.newObject("Sketcher::SketchObject", "Sketch009")
sketch10.AttachmentSupport = (doc.getObject("XZ_Plane004"), [""])
sketch10.MapMode = "FlatFace"
sketch10.AttachmentOffset = App.Placement(App.Vector(0, 0, -115), App.Rotation())
sketch10.addGeometry(Part.Circle(App.Vector(24, -183, 0), App.Vector(0, 0, 1), 15), False)
sketch10.addConstraint([
    Sketcher.Constraint("Diameter", 0, Q("30 mm")),
    Sketcher.Constraint("DistanceX", -1, 1, 0, 3, Q("24.221778 mm")),
    Sketcher.Constraint("DistanceY", 0, 3, -1, 1, Q("183.112387 mm")),
])
pad6 = body5.newObject("PartDesign::Pad", "Pad005")
pad6.Profile = sketch10
pad6.Length = 5
pad6.Reversed = True

# Sketch on XZ plane
sketch11 = body5.newObject("Sketcher::SketchObject", "Sketch010")
sketch11.AttachmentSupport = (doc.getObject("XZ_Plane004"), [""])
sketch11.MapMode = "FlatFace"
sketch11.AttachmentOffset = App.Placement(App.Vector(0, 0, -115), App.Rotation())
sketch11.addGeometry(Part.Circle(App.Vector(24, -183, 0), App.Vector(0, 0, 1), 8), False)
sketch11.addConstraint([
    Sketcher.Constraint("Diameter", 0, Q("17 mm")),
    Sketcher.Constraint("DistanceX", -1, 1, 0, 3, Q("24.221778 mm")),
    Sketcher.Constraint("DistanceY", 0, 3, -1, 1, Q("183.112387 mm")),
])
pocket5 = body5.newObject("PartDesign::Pocket", "Pocket004")
pocket5.Profile = sketch11
pocket5.Length = 20
body6 = doc.addObject("PartDesign::Body", "Body005")

# Sketch on YZ plane
sketch12 = body6.newObject("Sketcher::SketchObject", "Sketch011")
sketch12.AttachmentSupport = (doc.getObject("YZ_Plane005"), [""])
sketch12.MapMode = "FlatFace"
sketch12.AttachmentOffset = App.Placement(App.Vector(0, 0, 93.227453), App.Rotation())
sketch12.addGeometry(Part.Circle(App.Vector(121, -59, 0), App.Vector(0, 0, 1), 15), False)
sketch12.addConstraint([
    Sketcher.Constraint("Diameter", 0, Q("30 mm")),
    Sketcher.Constraint("DistanceX", -1, 1, 0, 3, Q("120.555556 mm")),
    Sketcher.Constraint("DistanceY", 0, 3, -1, 1, Q("59.112387 mm")),
])
pad7 = body6.newObject("PartDesign::Pad", "Pad006")
pad7.Profile = sketch12
pad7.Length = 10
pad7.Reversed = True
body7 = doc.addObject("PartDesign::Body", "Body006")

# Sketch on YZ plane
sketch13 = body7.newObject("Sketcher::SketchObject", "Sketch012")
sketch13.AttachmentSupport = (doc.getObject("YZ_Plane006"), [""])
sketch13.MapMode = "FlatFace"
sketch13.AttachmentOffset = App.Placement(App.Vector(0, 0, 97.227453), App.Rotation())
sketch13.addGeometry(Part.Circle(App.Vector(121, -59, 0), App.Vector(0, 0, 1), 12), False)
sketch13.addConstraint([
    Sketcher.Constraint("Diameter", 0, Q("24.5 mm")),
    Sketcher.Constraint("DistanceX", -1, 1, 0, 3, Q("120.555556 mm")),
    Sketcher.Constraint("DistanceY", 0, 3, -1, 1, Q("59.112387 mm")),
])
pad8 = body7.newObject("PartDesign::Pad", "Pad007")
pad8.Profile = sketch13
pad8.Length = 10
pad8.Reversed = True
body8 = doc.addObject("PartDesign::Body", "Body007")

# Sketch on YZ plane
sketch14 = body8.newObject("Sketcher::SketchObject", "Sketch013")
sketch14.AttachmentSupport = (doc.getObject("YZ_Plane007"), [""])
sketch14.MapMode = "FlatFace"
sketch14.AttachmentOffset = App.Placement(App.Vector(0, 0, 97.227453), App.Rotation())
sketch14.addGeometry(Part.Circle(App.Vector(121, -59, 0), App.Vector(0, 0, 1), 12), False)
sketch14.addConstraint([
    Sketcher.Constraint("Diameter", 0, Q("25 mm")),
    Sketcher.Constraint("DistanceX", -1, 1, 0, 3, Q("120.555556 mm")),
    Sketcher.Constraint("DistanceY", 0, 3, -1, 1, Q("59.112387 mm")),
])
pad9 = body8.newObject("PartDesign::Pad", "Pad008")
pad9.Profile = sketch14
pad9.Length = 77

# Sketch on YZ plane
sketch15 = body8.newObject("Sketcher::SketchObject", "Sketch014")
sketch15.AttachmentSupport = (doc.getObject("YZ_Plane007"), [""])
sketch15.MapMode = "FlatFace"
sketch15.AttachmentOffset = App.Placement(App.Vector(0, 0, 174.227453), App.Rotation())
sketch15.addGeometry([
    Part.Circle(App.Vector(121, -59, 0), App.Vector(0, 0, 1), 12),
    Part.Circle(App.Vector(121, -59, 0), App.Vector(0, 0, 1), 8),
], False)
sketch15.addConstraint([
    Sketcher.Constraint("Coincident", 1, 3, 0, 3),
    Sketcher.Constraint("Diameter", 0, Q("25 mm")),
    Sketcher.Constraint("Diameter", 1, Q("16 mm")),
    Sketcher.Constraint("DistanceX", -1, 1, 0, 3, Q("120.555556 mm")),
    Sketcher.Constraint("DistanceY", 0, 3, -1, 1, Q("59.112387 mm")),
])
pocket6 = body8.newObject("PartDesign::Pocket", "Pocket005")
pocket6.Profile = sketch15
pocket6.Length = 20
doc.recompute()

chamfer3 = body8.newObject("PartDesign::Chamfer", "Chamfer002")
chamfer3.Base = (pocket6, edges_at(pocket6, [(154.227, 120.556, -46.612)]))
chamfer3.ChamferType = "Two distances"
chamfer3.Size = 40
chamfer3.Size2 = 2.5
doc.recompute()

boolean = body8.newObject("PartDesign::Boolean", "Boolean")
boolean.Type = "Fuse"
boolean.addObjects([body7])
doc.recompute()

boolean2 = body8.newObject("PartDesign::Boolean", "Boolean001")
boolean2.Type = "Fuse"
boolean2.addObjects([body6])
body9 = doc.addObject("PartDesign::Body", "Body008")
doc.recompute()

mirroring = doc.addObject("Part::Mirroring", "Mirroring")
mirroring.Source = body3
mirroring.Base = App.Vector(-100, 0, 0)
mirroring.Normal = App.Vector(1, 0, 0)
body9.BaseFeature = mirroring
doc.recompute()
body10 = doc.addObject("PartDesign::Body", "Body009")
doc.recompute()

mirroring2 = doc.addObject("Part::Mirroring", "Mirroring001")
mirroring2.Source = body
mirroring2.Base = App.Vector(-100, 0, 0)
mirroring2.Normal = App.Vector(1, 0, 0)
body10.BaseFeature = mirroring2
doc.recompute()
body11 = doc.addObject("PartDesign::Body", "Body010")
doc.recompute()

mirroring3 = doc.addObject("Part::Mirroring", "Mirroring002")
mirroring3.Source = body2
mirroring3.Base = App.Vector(-100, 0, 0)
mirroring3.Normal = App.Vector(1, 0, 0)
body11.BaseFeature = mirroring3
doc.recompute()
body12 = doc.addObject("PartDesign::Body", "Body011")
doc.recompute()

mirroring4 = doc.addObject("Part::Mirroring", "Mirroring003")
mirroring4.Source = body8
mirroring4.Base = App.Vector(-100, 0, 0)
mirroring4.Normal = App.Vector(1, 0, 0)
body12.BaseFeature = mirroring4
doc.recompute()
body13 = doc.addObject("PartDesign::Body", "Body012")
doc.recompute()

mirroring5 = doc.addObject("Part::Mirroring", "Mirroring004")
mirroring5.Source = body5
mirroring5.Base = App.Vector(-100, 0, 0)
mirroring5.Normal = App.Vector(1, 0, 0)
body13.BaseFeature = mirroring5
doc.recompute()
body14 = doc.addObject("PartDesign::Body", "Body013")
doc.recompute()

mirroring6 = doc.addObject("Part::Mirroring", "Mirroring005")
mirroring6.Source = body4
mirroring6.Base = App.Vector(-100, 0, 0)
mirroring6.Normal = App.Vector(1, 0, 0)
body14.BaseFeature = mirroring6
doc.recompute()
body.Visibility = False
body2.Visibility = False
body3.Visibility = False
body4.Visibility = False
body5.Visibility = False
body8.Visibility = False
mirroring.Visibility = False
mirroring2.Visibility = False
mirroring3.Visibility = False
mirroring4.Visibility = False
mirroring5.Visibility = False
mirroring6.Visibility = False

doc.recompute()
